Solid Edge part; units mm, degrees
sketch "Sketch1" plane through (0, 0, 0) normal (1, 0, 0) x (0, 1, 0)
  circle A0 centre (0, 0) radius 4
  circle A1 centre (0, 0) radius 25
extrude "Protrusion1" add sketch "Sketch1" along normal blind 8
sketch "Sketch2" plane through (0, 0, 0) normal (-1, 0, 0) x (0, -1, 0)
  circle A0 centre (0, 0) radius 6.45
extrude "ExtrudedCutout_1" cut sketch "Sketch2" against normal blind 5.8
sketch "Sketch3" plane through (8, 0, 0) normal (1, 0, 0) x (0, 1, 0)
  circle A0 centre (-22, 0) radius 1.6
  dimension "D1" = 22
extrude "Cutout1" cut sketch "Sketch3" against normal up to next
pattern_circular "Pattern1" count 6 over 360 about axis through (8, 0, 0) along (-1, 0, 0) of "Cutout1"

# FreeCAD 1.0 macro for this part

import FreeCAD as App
import Part
import Sketcher
from FreeCAD import Vector

doc = App.newDocument("Part")
body = doc.addObject("PartDesign::Body", "Body")

# Sketch on YZ plane
sketch1 = body.newObject("Sketcher::SketchObject", "Sketch")
sketch1.AttachmentSupport = (doc.getObject("YZ_Plane"), [""])
sketch1.MapMode = "FlatFace"
sketch1.addGeometry([
    Part.Circle(Vector(0, 0, 0), Vector(0, 0, 1), 25),
    Part.Circle(Vector(0, 0, 0), Vector(0, 0, 1), 4),
], False)
sketch1.addConstraint([
    Sketcher.Constraint("Coincident", 0, 3, -1, 1),
    Sketcher.Constraint("Coincident", 1, 3, -1, 1),
    Sketcher.Constraint("Diameter", 0, 50.0),
    Sketcher.Constraint("Diameter", 1, 8.0),
])
pad1 = body.newObject("PartDesign::Pad", "Pad")
pad1.Profile = sketch1
pad1.Length = 8

# Sketch on YZ plane
sketch2 = body.newObject("Sketcher::SketchObject", "Sketch001")
sketch2.AttachmentSupport = (doc.getObject("YZ_Plane"), [""])
sketch2.MapMode = "FlatFace"
sketch2.addGeometry(Part.Circle(Vector(0, 0, 0), Vector(0, 0, 1), 6.45), False)
sketch2.addConstraint([
    Sketcher.Constraint("Coincident", 0, 3, -1, 1),
    Sketcher.Constraint("Diameter", 0, 12.9),
])
pocket1 = body.newObject("PartDesign::Pocket", "Pocket")
pocket1.Profile = sketch2
pocket1.Length = 5.8
pocket1.Reversed = True

# Sketch on YZ plane
sketch3 = body.newObject("Sketcher::SketchObject", "Sketch002")
sketch3.AttachmentSupport = (doc.getObject("YZ_Plane"), [""])
sketch3.MapMode = "FlatFace"
sketch3.AttachmentOffset = App.Placement(Vector(0, 0, 8), App.Rotation())
sketch3.addGeometry(Part.Circle(Vector(-22, 0, 0), Vector(0, 0, 1), 1.6), False)
sketch3.addConstraint([
    Sketcher.Constraint("PointOnObject", 0, 3, -1),
    Sketcher.Constraint("Diameter", 0, 3.2),
    Sketcher.Constraint("DistanceX", 0, 3, -1, 1, 22.0),
])
pocket2 = body.newObject("PartDesign::Pocket", "Pocket001")
pocket2.Profile = sketch3
pocket2.Type = "UpToFirst"
doc.recompute()

polarpattern = body.newObject("PartDesign::PolarPattern", "PolarPattern")
polarpattern.Originals = [pocket2]
polarpattern.Axis = (doc.getObject("X_Axis"), [""])
polarpattern.Angle = 360
polarpattern.Occurrences = 6
body.Tip = polarpattern

doc.recompute()
